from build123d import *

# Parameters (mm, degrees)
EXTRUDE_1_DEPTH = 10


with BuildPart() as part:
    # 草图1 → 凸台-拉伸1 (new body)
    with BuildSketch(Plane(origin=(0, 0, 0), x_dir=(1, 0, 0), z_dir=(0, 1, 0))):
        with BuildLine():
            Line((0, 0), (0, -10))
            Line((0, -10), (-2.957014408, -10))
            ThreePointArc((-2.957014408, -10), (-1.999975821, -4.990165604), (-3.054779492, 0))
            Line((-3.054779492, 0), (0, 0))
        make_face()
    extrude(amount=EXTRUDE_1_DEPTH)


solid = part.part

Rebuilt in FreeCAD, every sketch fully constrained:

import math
import FreeCAD as App
import Part
import Sketcher
Q = App.Units.Quantity

doc = App.newDocument("Part")
params = doc.addObject("Spreadsheet::Sheet", "Params")
for row, (alias, value) in enumerate([
    ("sketch1_height", "10 mm"),
    ("sketch1_radius", "12.93 mm"),
    ("pad1_length", "10 mm"),
], start=1):
    params.set(f"A{row}", alias)
    params.set(f"B{row}", "=" + value)
    params.setAlias(f"B{row}", alias)

body = doc.addObject("PartDesign::Body", "Body")

sketch1 = doc.addObject("Sketcher::SketchObject", "Sketch")
body.addObject(sketch1)
sketch1.AttachmentSupport = (doc.XZ_Plane, [""])
sketch1.MapMode = "FlatFace"
sketch1.addGeometry([
    Part.LineSegment(App.Vector(0, 10, 0), App.Vector(0, 0, 0)),
    Part.LineSegment(App.Vector(0, 0, 0), App.Vector(-3.1, 0, 0)),
    Part.ArcOfCircle(Part.Circle(App.Vector(-14.9, 5.1, 0), App.Vector(0, 0, 1), 12.9), math.radians(-23), math.radians(22)),
    Part.LineSegment(App.Vector(-3, 10, 0), App.Vector(0, 10, 0)),
], False)
sketch1.addConstraint([
    Sketcher.Constraint("Coincident", 0, 2, 1, 1),
    Sketcher.Constraint("Coincident", 1, 2, 2, 1),
    Sketcher.Constraint("Coincident", 2, 2, 3, 1),
    Sketcher.Constraint("Coincident", 3, 2, 0, 1),
    Sketcher.Constraint("Vertical", 0),
    Sketcher.Constraint("Horizontal", 1),
    Sketcher.Constraint("Horizontal", 3),
    Sketcher.Constraint("Coincident", 0, 2, -1, 1),
    Sketcher.Constraint("DistanceY", 0, 2, 0, 1, Q("10 mm")),
    Sketcher.Constraint("Radius", 2, Q("12.93 mm")),
    Sketcher.Constraint("DistanceX", 1, 2, 1, 1, Q("3.054779 mm")),
    Sketcher.Constraint("DistanceX", 3, 1, 3, 2, Q("2.957014 mm")),
])
sketch1.setExpression("Constraints[8]", "Params.sketch1_height")
sketch1.setExpression("Constraints[9]", "Params.sketch1_radius")
pad1 = doc.addObject("PartDesign::Pad", "Pad")
body.addObject(pad1)
pad1.Profile = sketch1
pad1.setExpression("Length", "Params.pad1_length")
pad1.Reversed = True

doc.recompute()
